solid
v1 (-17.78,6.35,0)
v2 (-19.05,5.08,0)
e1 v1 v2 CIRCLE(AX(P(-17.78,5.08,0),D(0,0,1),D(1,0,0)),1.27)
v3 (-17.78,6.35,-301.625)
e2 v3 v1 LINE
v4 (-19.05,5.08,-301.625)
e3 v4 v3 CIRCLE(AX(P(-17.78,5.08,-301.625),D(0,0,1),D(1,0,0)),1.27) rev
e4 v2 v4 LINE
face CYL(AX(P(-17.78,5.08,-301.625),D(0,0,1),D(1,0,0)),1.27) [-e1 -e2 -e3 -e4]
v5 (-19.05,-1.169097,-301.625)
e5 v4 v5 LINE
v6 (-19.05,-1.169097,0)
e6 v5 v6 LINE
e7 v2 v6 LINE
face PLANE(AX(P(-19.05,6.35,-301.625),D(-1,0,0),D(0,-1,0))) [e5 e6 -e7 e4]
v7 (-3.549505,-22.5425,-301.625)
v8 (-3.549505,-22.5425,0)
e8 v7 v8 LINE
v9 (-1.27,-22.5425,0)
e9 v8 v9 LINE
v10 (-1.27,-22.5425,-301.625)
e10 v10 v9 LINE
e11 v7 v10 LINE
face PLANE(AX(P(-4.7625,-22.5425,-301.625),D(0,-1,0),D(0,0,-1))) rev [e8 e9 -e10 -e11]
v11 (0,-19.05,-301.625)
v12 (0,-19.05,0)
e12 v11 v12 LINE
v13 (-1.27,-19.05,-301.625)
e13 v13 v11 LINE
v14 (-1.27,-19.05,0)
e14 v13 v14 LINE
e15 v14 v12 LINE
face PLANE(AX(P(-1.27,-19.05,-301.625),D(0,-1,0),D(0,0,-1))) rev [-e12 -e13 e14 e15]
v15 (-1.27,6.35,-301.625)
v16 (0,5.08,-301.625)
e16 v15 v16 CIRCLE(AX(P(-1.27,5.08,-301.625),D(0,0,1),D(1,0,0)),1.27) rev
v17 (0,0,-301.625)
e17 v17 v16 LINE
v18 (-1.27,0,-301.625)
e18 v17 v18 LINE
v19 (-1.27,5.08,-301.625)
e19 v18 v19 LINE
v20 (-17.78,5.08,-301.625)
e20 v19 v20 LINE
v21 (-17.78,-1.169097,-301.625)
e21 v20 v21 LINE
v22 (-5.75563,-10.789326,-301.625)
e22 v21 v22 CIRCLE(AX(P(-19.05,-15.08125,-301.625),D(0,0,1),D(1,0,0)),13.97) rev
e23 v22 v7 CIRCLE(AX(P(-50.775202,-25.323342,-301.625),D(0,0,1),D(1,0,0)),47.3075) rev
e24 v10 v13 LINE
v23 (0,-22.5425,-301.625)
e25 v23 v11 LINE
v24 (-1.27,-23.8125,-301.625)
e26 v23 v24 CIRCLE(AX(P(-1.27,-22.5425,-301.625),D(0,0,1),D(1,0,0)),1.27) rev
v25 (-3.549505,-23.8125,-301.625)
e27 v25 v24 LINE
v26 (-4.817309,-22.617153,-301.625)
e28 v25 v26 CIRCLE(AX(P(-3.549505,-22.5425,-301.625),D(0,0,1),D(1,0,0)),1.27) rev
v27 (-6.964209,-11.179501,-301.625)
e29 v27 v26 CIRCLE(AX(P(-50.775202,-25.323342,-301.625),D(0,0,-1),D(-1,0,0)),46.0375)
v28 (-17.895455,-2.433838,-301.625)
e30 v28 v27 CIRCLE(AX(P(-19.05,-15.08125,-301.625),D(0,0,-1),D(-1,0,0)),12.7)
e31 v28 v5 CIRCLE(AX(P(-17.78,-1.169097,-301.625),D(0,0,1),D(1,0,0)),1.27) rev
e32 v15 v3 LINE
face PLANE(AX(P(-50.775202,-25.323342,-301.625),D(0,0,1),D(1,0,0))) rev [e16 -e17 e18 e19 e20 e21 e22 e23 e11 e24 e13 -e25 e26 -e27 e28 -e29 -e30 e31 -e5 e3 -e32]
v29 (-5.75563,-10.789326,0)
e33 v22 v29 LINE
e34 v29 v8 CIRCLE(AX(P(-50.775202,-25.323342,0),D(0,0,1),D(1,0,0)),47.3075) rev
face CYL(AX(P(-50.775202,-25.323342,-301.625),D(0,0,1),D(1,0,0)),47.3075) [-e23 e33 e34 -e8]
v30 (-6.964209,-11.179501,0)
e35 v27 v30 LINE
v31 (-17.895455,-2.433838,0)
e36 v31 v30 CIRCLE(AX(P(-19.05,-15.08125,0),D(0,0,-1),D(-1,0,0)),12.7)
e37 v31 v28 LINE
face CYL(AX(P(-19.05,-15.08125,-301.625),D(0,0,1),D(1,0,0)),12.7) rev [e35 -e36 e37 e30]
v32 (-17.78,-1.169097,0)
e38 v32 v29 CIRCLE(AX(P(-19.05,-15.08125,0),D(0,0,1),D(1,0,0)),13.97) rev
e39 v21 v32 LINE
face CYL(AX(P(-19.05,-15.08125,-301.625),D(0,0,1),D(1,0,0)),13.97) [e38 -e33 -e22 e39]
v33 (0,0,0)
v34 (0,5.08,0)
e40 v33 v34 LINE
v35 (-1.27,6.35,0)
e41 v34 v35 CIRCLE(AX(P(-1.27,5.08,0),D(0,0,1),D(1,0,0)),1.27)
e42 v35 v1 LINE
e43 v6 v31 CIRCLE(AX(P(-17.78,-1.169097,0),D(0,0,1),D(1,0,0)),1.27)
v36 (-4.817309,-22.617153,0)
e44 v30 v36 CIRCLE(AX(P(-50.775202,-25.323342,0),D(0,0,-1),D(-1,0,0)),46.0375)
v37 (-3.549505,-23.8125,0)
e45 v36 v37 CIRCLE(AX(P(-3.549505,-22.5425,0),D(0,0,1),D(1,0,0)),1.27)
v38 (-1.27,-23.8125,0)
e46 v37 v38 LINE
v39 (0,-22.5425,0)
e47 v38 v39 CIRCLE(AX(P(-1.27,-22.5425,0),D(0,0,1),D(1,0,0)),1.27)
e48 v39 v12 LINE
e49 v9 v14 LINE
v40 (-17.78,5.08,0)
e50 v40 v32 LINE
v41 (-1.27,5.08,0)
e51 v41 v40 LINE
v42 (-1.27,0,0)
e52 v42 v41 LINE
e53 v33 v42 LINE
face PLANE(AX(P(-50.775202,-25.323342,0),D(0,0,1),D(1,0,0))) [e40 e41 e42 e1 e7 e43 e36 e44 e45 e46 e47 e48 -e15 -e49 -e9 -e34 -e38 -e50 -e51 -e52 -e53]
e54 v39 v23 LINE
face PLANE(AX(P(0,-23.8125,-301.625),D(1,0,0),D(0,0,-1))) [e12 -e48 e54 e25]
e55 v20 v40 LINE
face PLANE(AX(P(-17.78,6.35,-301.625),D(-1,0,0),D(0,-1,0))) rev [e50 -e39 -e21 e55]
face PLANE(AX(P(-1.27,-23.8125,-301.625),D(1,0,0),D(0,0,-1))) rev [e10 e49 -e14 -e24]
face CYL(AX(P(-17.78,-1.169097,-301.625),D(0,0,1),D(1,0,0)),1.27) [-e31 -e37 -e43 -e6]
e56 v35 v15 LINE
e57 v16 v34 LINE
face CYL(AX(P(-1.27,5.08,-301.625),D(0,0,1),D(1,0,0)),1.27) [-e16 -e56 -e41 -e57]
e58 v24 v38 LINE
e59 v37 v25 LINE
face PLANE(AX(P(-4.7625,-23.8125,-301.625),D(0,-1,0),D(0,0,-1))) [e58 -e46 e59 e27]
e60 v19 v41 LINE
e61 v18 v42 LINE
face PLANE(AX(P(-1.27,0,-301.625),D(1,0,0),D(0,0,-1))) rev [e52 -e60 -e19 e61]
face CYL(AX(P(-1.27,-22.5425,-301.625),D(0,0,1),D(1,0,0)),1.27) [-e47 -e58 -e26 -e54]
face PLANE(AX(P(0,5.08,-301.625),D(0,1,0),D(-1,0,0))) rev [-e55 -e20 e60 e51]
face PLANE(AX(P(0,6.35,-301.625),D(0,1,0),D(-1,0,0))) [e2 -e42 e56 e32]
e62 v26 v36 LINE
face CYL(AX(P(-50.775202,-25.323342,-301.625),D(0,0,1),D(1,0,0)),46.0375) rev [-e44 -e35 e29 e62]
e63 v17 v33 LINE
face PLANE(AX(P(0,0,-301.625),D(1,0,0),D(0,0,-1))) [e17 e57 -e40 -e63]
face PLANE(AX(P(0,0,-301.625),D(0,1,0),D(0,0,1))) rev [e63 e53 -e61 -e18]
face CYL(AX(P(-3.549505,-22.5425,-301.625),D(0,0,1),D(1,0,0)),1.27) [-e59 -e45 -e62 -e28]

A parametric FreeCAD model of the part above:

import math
import FreeCAD as App
import Part
import Sketcher

V = App.Vector
Q = App.Units.Quantity


def edges_at(feature, points):
    """Names of the edges that pass closest to the given points."""
    edges = feature.Shape.Edges
    near = lambda p: min(range(len(edges)), key=lambda i: edges[i].distToShape(Part.Vertex(*p))[0])
    return sorted({f"Edge{near(p) + 1}" for p in points})

doc = App.newDocument("Part")
body = doc.addObject("PartDesign::Body", "Body")

sketch1 = doc.addObject("Sketcher::SketchObject", "Sketch")
body.addObject(sketch1)
sketch1.AttachmentSupport = (doc.XY_Plane, [""])
sketch1.MapMode = "FlatFace"
sketch1.addGeometry([
    Part.LineSegment(V(0, 0, 0), V(0, 6.3, 0)),
    Part.LineSegment(V(0, 6.3, 0), V(-19.1, 6.3, 0)),
    Part.LineSegment(V(-19.1, 6.3, 0), V(-19.1, -2.4, 0)),
    Part.ArcOfCircle(Part.Circle(V(-19, -15.1, 0), V(0, 0, 1), 12.7), math.radians(18), math.radians(90)),
    Part.ArcOfCircle(Part.Circle(V(-50.8, -25.3, 0), V(0, 0, 1), 46), math.radians(1.88), math.radians(17.89)),
    Part.LineSegment(V(-4.8, -23.8, 0), V(0, -23.8, 0)),
    Part.LineSegment(V(0, -23.8, 0), V(0, -19.1, 0)),
    Part.LineSegment(V(0, -19.1, 0), V(-1.3, -19.1, 0)),
    Part.LineSegment(V(-1.3, -19.1, 0), V(-1.3, -22.5, 0)),
    Part.LineSegment(V(-1.3, -22.5, 0), V(-3.5, -22.5, 0)),
    Part.ArcOfCircle(Part.Circle(V(-50.8, -25.3, 0), V(0, 0, 1), 47.3), math.radians(3.37), math.radians(17.89)),
    Part.ArcOfCircle(Part.Circle(V(-19.1, -15.1, 0), V(0, 0, 1), 14), math.radians(18), math.radians(85)),
    Part.LineSegment(V(-17.8, -1.2, 0), V(-17.8, 5.1, 0)),
    Part.LineSegment(V(-17.8, 5.1, 0), V(-1.3, 5.1, 0)),
    Part.LineSegment(V(-1.3, 5.1, 0), V(-1.3, 0, 0)),
    Part.LineSegment(V(-1.3, 0, 0), V(0, 0, 0)),
], False)
sketch1.addConstraint([
    Sketcher.Constraint("Coincident", 0, 2, 1, 1),
    Sketcher.Constraint("Coincident", 1, 2, 2, 1),
    Sketcher.Constraint("Coincident", 2, 2, 3, 2),
    Sketcher.Constraint("Tangent", 3, 1, 4, 2),
    Sketcher.Constraint("Coincident", 4, 1, 5, 1),
    Sketcher.Constraint("Coincident", 5, 2, 6, 1),
    Sketcher.Constraint("Coincident", 6, 2, 7, 1),
    Sketcher.Constraint("Coincident", 7, 2, 8, 1),
    Sketcher.Constraint("Coincident", 8, 2, 9, 1),
    Sketcher.Constraint("Coincident", 9, 2, 10, 1),
    Sketcher.Constraint("Tangent", 10, 2, 11, 1),
    Sketcher.Constraint("Coincident", 11, 2, 12, 1),
    Sketcher.Constraint("Coincident", 12, 2, 13, 1),
    Sketcher.Constraint("Coincident", 13, 2, 14, 1),
    Sketcher.Constraint("Coincident", 14, 2, 15, 1),
    Sketcher.Constraint("Coincident", 15, 2, 0, 1),
    Sketcher.Constraint("Vertical", 0),
    Sketcher.Constraint("Horizontal", 1),
    Sketcher.Constraint("Vertical", 2),
    Sketcher.Constraint("Horizontal", 5),
    Sketcher.Constraint("Vertical", 6),
    Sketcher.Constraint("Horizontal", 7),
    Sketcher.Constraint("Vertical", 8),
    Sketcher.Constraint("Horizontal", 9),
    Sketcher.Constraint("Vertical", 12),
    Sketcher.Constraint("Horizontal", 13),
    Sketcher.Constraint("Vertical", 14),
    Sketcher.Constraint("Horizontal", 15),
    Sketcher.Constraint("Coincident", 15, 2, -1, 1),
    Sketcher.Constraint("Coincident", 10, 3, 4, 3),
    Sketcher.Constraint("Coincident", 11, 3, 3, 3),
    Sketcher.Constraint("PointOnObject", 5, 2, -2),
    Sketcher.Constraint("Vertical", 11, 3, 1, 2),
    Sketcher.Constraint("Vertical", 8, 2, 13, 2),
    Sketcher.Constraint("Equal", 5, 6),
    Sketcher.Constraint("Radius", 3, Q("0.5 in")),
    Sketcher.Constraint("Radius", 11, Q("0.55 in")),
    Sketcher.Constraint("DistanceY", 14, 2, 14, 1, Q("0.2 in")),
    Sketcher.Constraint("Radius", 4, Q("1.8125 in")),
    Sketcher.Constraint("DistanceX", 1, 2, 1, 1, Q("0.75 in")),
    Sketcher.Constraint("DistanceX", 7, 2, 7, 1, Q("0.05 in")),
    Sketcher.Constraint("DistanceX", 13, 1, 13, 2, Q("0.65 in")),
    Sketcher.Constraint("DistanceY", 0, 1, 0, 2, Q("0.25 in")),
    Sketcher.Constraint("DistanceX", 5, 1, 5, 2, Q("0.1875 in")),
    Sketcher.Constraint("DistanceY", 2, 2, 2, 1, Q("0.34375 in")),
    Sketcher.Constraint("DistanceY", 6, 2, -1, 1, Q("0.75 in")),
    Sketcher.Constraint("DistanceY", 5, 2, 8, 2, Q("0.05 in")),
])
pad1 = doc.addObject("PartDesign::Pad", "Pad")
body.addObject(pad1)
pad1.Profile = sketch1
pad1.Length = Q("11.875 in")
pad1.Reversed = True
doc.recompute()

fillet = doc.addObject("PartDesign::Fillet", "Fillet")
body.addObject(fillet)
fillet.Base = (pad1, edges_at(pad1, [
    (0, -23.812, -150.812),
    (-4.763, -23.812, -150.812),
    (-19.05, -2.381, -150.812),
    (-19.05, 6.35, -150.812),
    (0, 6.35, -150.812),
]))
fillet.Radius = Q("0.05 in")

doc.recompute()
